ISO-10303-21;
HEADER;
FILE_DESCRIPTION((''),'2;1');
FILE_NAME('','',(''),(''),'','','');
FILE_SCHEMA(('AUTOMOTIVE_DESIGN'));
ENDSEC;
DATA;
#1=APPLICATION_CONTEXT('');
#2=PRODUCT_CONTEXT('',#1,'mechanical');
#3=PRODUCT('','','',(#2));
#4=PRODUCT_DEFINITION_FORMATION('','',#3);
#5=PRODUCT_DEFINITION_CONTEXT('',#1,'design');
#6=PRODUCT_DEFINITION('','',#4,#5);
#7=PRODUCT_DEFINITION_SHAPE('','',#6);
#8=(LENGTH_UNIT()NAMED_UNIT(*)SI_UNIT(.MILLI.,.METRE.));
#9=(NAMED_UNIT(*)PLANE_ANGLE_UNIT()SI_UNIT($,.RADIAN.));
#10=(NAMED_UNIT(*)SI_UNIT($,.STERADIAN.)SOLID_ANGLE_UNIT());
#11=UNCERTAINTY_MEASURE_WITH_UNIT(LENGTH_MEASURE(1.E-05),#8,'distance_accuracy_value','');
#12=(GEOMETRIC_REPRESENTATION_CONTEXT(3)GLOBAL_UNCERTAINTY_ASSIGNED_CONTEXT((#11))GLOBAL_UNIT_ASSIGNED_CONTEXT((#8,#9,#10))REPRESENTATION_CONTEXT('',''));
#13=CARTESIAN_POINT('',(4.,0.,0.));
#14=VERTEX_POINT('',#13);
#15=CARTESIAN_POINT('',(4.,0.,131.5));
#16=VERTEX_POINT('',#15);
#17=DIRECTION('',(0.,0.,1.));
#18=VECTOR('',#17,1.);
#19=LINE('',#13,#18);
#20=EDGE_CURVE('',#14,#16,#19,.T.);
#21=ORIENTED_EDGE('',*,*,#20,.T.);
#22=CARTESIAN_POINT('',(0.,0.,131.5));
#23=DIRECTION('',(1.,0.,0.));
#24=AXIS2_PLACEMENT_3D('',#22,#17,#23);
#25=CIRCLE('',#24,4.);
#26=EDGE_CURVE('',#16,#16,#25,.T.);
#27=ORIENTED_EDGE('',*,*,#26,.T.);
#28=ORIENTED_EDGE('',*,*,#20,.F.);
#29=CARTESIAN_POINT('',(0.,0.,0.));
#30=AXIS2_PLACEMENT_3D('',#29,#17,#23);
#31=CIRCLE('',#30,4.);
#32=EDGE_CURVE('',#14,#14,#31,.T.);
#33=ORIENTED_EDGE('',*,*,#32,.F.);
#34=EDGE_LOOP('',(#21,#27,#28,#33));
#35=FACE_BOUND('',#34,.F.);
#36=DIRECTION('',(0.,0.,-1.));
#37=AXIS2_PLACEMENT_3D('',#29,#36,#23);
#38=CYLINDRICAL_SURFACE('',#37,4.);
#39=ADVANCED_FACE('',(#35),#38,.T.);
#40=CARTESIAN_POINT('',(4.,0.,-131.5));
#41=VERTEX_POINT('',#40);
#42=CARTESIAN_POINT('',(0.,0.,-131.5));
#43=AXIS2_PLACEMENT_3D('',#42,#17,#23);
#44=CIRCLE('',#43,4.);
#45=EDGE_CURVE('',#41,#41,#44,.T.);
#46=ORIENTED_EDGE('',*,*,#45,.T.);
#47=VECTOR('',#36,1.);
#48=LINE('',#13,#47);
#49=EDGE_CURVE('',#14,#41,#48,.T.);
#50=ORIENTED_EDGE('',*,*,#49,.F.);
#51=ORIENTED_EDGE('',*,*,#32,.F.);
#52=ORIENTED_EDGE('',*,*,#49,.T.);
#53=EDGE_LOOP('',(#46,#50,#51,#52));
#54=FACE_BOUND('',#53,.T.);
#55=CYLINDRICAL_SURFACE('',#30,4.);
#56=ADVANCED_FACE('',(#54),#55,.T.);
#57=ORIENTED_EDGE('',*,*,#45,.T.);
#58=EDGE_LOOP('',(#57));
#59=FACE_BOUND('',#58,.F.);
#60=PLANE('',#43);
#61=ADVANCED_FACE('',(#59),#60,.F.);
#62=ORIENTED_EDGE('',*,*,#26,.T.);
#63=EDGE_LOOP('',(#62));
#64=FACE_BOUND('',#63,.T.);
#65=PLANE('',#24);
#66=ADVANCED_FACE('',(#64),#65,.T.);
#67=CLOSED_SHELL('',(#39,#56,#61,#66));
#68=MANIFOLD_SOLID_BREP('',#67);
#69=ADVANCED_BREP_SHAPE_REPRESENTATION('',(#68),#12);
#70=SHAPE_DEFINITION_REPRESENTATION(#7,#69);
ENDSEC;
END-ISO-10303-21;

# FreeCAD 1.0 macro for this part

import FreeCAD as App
import Part
import Sketcher
Q = App.Units.Quantity

doc = App.newDocument("Part")
body = doc.addObject("PartDesign::Body", "Body")

# Sketch on XY plane
sketch1 = body.newObject("Sketcher::SketchObject", "Sketch")
sketch1.AttachmentSupport = (doc.getObject("XY_Plane"), [""])
sketch1.MapMode = "FlatFace"
sketch1.addGeometry(Part.Circle(App.Vector(0, 0, 0), App.Vector(0, 0, 1), 4), False)
sketch1.addConstraint([
    Sketcher.Constraint("Coincident", 0, 3, -1, 1),
    Sketcher.Constraint("Diameter", 0, Q("8 mm")),
])
pad1 = body.newObject("PartDesign::Pad", "Pad")
pad1.Profile = sketch1
pad1.Length = 263
pad1.Midplane = True

doc.recompute()
